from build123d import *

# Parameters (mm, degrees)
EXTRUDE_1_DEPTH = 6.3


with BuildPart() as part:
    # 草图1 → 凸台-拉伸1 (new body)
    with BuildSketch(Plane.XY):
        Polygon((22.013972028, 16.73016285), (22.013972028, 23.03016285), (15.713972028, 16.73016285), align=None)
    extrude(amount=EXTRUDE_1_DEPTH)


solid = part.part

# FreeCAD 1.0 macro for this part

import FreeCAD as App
import Part
import Sketcher

V = App.Vector
Q = App.Units.Quantity

doc = App.newDocument("Part")
params = doc.addObject("Spreadsheet::Sheet", "Params")
for row, (alias, value) in enumerate([
    ("sketch1_width", "6.3 mm"),
    ("pad1_length", "6.3 mm"),
], start=1):
    params.set(f"A{row}", alias)
    params.set(f"B{row}", "=" + value)
    params.setAlias(f"B{row}", alias)

body = doc.addObject("PartDesign::Body", "Body")

sketch1 = body.newObject("Sketcher::SketchObject", "Sketch")
sketch1.AttachmentSupport = (doc.getObject("XY_Plane"), [""])
sketch1.MapMode = "FlatFace"
sketch1.addGeometry([
    Part.LineSegment(V(22, 17, 0), V(22, 23, 0)),
    Part.LineSegment(V(22, 23, 0), V(16, 17, 0)),
    Part.LineSegment(V(16, 17, 0), V(22, 17, 0)),
], False)
sketch1.addConstraint([
    Sketcher.Constraint("Coincident", 0, 2, 1, 1),
    Sketcher.Constraint("Coincident", 1, 2, 2, 1),
    Sketcher.Constraint("Coincident", 2, 2, 0, 1),
    Sketcher.Constraint("Vertical", 0),
    Sketcher.Constraint("Horizontal", 2),
    Sketcher.Constraint("Equal", 2, 0),
    Sketcher.Constraint("DistanceX", 2, 1, 2, 2, Q("6.3 mm")),
    Sketcher.Constraint("DistanceX", -1, 1, 0, 2, Q("22.013972 mm")),
    Sketcher.Constraint("DistanceY", -1, 1, 0, 2, Q("23.030163 mm")),
])
sketch1.setExpression("Constraints[6]", "Params.sketch1_width")
pad1 = body.newObject("PartDesign::Pad", "Pad")
pad1.Profile = sketch1
pad1.setExpression("Length", "Params.pad1_length")

doc.recompute()
